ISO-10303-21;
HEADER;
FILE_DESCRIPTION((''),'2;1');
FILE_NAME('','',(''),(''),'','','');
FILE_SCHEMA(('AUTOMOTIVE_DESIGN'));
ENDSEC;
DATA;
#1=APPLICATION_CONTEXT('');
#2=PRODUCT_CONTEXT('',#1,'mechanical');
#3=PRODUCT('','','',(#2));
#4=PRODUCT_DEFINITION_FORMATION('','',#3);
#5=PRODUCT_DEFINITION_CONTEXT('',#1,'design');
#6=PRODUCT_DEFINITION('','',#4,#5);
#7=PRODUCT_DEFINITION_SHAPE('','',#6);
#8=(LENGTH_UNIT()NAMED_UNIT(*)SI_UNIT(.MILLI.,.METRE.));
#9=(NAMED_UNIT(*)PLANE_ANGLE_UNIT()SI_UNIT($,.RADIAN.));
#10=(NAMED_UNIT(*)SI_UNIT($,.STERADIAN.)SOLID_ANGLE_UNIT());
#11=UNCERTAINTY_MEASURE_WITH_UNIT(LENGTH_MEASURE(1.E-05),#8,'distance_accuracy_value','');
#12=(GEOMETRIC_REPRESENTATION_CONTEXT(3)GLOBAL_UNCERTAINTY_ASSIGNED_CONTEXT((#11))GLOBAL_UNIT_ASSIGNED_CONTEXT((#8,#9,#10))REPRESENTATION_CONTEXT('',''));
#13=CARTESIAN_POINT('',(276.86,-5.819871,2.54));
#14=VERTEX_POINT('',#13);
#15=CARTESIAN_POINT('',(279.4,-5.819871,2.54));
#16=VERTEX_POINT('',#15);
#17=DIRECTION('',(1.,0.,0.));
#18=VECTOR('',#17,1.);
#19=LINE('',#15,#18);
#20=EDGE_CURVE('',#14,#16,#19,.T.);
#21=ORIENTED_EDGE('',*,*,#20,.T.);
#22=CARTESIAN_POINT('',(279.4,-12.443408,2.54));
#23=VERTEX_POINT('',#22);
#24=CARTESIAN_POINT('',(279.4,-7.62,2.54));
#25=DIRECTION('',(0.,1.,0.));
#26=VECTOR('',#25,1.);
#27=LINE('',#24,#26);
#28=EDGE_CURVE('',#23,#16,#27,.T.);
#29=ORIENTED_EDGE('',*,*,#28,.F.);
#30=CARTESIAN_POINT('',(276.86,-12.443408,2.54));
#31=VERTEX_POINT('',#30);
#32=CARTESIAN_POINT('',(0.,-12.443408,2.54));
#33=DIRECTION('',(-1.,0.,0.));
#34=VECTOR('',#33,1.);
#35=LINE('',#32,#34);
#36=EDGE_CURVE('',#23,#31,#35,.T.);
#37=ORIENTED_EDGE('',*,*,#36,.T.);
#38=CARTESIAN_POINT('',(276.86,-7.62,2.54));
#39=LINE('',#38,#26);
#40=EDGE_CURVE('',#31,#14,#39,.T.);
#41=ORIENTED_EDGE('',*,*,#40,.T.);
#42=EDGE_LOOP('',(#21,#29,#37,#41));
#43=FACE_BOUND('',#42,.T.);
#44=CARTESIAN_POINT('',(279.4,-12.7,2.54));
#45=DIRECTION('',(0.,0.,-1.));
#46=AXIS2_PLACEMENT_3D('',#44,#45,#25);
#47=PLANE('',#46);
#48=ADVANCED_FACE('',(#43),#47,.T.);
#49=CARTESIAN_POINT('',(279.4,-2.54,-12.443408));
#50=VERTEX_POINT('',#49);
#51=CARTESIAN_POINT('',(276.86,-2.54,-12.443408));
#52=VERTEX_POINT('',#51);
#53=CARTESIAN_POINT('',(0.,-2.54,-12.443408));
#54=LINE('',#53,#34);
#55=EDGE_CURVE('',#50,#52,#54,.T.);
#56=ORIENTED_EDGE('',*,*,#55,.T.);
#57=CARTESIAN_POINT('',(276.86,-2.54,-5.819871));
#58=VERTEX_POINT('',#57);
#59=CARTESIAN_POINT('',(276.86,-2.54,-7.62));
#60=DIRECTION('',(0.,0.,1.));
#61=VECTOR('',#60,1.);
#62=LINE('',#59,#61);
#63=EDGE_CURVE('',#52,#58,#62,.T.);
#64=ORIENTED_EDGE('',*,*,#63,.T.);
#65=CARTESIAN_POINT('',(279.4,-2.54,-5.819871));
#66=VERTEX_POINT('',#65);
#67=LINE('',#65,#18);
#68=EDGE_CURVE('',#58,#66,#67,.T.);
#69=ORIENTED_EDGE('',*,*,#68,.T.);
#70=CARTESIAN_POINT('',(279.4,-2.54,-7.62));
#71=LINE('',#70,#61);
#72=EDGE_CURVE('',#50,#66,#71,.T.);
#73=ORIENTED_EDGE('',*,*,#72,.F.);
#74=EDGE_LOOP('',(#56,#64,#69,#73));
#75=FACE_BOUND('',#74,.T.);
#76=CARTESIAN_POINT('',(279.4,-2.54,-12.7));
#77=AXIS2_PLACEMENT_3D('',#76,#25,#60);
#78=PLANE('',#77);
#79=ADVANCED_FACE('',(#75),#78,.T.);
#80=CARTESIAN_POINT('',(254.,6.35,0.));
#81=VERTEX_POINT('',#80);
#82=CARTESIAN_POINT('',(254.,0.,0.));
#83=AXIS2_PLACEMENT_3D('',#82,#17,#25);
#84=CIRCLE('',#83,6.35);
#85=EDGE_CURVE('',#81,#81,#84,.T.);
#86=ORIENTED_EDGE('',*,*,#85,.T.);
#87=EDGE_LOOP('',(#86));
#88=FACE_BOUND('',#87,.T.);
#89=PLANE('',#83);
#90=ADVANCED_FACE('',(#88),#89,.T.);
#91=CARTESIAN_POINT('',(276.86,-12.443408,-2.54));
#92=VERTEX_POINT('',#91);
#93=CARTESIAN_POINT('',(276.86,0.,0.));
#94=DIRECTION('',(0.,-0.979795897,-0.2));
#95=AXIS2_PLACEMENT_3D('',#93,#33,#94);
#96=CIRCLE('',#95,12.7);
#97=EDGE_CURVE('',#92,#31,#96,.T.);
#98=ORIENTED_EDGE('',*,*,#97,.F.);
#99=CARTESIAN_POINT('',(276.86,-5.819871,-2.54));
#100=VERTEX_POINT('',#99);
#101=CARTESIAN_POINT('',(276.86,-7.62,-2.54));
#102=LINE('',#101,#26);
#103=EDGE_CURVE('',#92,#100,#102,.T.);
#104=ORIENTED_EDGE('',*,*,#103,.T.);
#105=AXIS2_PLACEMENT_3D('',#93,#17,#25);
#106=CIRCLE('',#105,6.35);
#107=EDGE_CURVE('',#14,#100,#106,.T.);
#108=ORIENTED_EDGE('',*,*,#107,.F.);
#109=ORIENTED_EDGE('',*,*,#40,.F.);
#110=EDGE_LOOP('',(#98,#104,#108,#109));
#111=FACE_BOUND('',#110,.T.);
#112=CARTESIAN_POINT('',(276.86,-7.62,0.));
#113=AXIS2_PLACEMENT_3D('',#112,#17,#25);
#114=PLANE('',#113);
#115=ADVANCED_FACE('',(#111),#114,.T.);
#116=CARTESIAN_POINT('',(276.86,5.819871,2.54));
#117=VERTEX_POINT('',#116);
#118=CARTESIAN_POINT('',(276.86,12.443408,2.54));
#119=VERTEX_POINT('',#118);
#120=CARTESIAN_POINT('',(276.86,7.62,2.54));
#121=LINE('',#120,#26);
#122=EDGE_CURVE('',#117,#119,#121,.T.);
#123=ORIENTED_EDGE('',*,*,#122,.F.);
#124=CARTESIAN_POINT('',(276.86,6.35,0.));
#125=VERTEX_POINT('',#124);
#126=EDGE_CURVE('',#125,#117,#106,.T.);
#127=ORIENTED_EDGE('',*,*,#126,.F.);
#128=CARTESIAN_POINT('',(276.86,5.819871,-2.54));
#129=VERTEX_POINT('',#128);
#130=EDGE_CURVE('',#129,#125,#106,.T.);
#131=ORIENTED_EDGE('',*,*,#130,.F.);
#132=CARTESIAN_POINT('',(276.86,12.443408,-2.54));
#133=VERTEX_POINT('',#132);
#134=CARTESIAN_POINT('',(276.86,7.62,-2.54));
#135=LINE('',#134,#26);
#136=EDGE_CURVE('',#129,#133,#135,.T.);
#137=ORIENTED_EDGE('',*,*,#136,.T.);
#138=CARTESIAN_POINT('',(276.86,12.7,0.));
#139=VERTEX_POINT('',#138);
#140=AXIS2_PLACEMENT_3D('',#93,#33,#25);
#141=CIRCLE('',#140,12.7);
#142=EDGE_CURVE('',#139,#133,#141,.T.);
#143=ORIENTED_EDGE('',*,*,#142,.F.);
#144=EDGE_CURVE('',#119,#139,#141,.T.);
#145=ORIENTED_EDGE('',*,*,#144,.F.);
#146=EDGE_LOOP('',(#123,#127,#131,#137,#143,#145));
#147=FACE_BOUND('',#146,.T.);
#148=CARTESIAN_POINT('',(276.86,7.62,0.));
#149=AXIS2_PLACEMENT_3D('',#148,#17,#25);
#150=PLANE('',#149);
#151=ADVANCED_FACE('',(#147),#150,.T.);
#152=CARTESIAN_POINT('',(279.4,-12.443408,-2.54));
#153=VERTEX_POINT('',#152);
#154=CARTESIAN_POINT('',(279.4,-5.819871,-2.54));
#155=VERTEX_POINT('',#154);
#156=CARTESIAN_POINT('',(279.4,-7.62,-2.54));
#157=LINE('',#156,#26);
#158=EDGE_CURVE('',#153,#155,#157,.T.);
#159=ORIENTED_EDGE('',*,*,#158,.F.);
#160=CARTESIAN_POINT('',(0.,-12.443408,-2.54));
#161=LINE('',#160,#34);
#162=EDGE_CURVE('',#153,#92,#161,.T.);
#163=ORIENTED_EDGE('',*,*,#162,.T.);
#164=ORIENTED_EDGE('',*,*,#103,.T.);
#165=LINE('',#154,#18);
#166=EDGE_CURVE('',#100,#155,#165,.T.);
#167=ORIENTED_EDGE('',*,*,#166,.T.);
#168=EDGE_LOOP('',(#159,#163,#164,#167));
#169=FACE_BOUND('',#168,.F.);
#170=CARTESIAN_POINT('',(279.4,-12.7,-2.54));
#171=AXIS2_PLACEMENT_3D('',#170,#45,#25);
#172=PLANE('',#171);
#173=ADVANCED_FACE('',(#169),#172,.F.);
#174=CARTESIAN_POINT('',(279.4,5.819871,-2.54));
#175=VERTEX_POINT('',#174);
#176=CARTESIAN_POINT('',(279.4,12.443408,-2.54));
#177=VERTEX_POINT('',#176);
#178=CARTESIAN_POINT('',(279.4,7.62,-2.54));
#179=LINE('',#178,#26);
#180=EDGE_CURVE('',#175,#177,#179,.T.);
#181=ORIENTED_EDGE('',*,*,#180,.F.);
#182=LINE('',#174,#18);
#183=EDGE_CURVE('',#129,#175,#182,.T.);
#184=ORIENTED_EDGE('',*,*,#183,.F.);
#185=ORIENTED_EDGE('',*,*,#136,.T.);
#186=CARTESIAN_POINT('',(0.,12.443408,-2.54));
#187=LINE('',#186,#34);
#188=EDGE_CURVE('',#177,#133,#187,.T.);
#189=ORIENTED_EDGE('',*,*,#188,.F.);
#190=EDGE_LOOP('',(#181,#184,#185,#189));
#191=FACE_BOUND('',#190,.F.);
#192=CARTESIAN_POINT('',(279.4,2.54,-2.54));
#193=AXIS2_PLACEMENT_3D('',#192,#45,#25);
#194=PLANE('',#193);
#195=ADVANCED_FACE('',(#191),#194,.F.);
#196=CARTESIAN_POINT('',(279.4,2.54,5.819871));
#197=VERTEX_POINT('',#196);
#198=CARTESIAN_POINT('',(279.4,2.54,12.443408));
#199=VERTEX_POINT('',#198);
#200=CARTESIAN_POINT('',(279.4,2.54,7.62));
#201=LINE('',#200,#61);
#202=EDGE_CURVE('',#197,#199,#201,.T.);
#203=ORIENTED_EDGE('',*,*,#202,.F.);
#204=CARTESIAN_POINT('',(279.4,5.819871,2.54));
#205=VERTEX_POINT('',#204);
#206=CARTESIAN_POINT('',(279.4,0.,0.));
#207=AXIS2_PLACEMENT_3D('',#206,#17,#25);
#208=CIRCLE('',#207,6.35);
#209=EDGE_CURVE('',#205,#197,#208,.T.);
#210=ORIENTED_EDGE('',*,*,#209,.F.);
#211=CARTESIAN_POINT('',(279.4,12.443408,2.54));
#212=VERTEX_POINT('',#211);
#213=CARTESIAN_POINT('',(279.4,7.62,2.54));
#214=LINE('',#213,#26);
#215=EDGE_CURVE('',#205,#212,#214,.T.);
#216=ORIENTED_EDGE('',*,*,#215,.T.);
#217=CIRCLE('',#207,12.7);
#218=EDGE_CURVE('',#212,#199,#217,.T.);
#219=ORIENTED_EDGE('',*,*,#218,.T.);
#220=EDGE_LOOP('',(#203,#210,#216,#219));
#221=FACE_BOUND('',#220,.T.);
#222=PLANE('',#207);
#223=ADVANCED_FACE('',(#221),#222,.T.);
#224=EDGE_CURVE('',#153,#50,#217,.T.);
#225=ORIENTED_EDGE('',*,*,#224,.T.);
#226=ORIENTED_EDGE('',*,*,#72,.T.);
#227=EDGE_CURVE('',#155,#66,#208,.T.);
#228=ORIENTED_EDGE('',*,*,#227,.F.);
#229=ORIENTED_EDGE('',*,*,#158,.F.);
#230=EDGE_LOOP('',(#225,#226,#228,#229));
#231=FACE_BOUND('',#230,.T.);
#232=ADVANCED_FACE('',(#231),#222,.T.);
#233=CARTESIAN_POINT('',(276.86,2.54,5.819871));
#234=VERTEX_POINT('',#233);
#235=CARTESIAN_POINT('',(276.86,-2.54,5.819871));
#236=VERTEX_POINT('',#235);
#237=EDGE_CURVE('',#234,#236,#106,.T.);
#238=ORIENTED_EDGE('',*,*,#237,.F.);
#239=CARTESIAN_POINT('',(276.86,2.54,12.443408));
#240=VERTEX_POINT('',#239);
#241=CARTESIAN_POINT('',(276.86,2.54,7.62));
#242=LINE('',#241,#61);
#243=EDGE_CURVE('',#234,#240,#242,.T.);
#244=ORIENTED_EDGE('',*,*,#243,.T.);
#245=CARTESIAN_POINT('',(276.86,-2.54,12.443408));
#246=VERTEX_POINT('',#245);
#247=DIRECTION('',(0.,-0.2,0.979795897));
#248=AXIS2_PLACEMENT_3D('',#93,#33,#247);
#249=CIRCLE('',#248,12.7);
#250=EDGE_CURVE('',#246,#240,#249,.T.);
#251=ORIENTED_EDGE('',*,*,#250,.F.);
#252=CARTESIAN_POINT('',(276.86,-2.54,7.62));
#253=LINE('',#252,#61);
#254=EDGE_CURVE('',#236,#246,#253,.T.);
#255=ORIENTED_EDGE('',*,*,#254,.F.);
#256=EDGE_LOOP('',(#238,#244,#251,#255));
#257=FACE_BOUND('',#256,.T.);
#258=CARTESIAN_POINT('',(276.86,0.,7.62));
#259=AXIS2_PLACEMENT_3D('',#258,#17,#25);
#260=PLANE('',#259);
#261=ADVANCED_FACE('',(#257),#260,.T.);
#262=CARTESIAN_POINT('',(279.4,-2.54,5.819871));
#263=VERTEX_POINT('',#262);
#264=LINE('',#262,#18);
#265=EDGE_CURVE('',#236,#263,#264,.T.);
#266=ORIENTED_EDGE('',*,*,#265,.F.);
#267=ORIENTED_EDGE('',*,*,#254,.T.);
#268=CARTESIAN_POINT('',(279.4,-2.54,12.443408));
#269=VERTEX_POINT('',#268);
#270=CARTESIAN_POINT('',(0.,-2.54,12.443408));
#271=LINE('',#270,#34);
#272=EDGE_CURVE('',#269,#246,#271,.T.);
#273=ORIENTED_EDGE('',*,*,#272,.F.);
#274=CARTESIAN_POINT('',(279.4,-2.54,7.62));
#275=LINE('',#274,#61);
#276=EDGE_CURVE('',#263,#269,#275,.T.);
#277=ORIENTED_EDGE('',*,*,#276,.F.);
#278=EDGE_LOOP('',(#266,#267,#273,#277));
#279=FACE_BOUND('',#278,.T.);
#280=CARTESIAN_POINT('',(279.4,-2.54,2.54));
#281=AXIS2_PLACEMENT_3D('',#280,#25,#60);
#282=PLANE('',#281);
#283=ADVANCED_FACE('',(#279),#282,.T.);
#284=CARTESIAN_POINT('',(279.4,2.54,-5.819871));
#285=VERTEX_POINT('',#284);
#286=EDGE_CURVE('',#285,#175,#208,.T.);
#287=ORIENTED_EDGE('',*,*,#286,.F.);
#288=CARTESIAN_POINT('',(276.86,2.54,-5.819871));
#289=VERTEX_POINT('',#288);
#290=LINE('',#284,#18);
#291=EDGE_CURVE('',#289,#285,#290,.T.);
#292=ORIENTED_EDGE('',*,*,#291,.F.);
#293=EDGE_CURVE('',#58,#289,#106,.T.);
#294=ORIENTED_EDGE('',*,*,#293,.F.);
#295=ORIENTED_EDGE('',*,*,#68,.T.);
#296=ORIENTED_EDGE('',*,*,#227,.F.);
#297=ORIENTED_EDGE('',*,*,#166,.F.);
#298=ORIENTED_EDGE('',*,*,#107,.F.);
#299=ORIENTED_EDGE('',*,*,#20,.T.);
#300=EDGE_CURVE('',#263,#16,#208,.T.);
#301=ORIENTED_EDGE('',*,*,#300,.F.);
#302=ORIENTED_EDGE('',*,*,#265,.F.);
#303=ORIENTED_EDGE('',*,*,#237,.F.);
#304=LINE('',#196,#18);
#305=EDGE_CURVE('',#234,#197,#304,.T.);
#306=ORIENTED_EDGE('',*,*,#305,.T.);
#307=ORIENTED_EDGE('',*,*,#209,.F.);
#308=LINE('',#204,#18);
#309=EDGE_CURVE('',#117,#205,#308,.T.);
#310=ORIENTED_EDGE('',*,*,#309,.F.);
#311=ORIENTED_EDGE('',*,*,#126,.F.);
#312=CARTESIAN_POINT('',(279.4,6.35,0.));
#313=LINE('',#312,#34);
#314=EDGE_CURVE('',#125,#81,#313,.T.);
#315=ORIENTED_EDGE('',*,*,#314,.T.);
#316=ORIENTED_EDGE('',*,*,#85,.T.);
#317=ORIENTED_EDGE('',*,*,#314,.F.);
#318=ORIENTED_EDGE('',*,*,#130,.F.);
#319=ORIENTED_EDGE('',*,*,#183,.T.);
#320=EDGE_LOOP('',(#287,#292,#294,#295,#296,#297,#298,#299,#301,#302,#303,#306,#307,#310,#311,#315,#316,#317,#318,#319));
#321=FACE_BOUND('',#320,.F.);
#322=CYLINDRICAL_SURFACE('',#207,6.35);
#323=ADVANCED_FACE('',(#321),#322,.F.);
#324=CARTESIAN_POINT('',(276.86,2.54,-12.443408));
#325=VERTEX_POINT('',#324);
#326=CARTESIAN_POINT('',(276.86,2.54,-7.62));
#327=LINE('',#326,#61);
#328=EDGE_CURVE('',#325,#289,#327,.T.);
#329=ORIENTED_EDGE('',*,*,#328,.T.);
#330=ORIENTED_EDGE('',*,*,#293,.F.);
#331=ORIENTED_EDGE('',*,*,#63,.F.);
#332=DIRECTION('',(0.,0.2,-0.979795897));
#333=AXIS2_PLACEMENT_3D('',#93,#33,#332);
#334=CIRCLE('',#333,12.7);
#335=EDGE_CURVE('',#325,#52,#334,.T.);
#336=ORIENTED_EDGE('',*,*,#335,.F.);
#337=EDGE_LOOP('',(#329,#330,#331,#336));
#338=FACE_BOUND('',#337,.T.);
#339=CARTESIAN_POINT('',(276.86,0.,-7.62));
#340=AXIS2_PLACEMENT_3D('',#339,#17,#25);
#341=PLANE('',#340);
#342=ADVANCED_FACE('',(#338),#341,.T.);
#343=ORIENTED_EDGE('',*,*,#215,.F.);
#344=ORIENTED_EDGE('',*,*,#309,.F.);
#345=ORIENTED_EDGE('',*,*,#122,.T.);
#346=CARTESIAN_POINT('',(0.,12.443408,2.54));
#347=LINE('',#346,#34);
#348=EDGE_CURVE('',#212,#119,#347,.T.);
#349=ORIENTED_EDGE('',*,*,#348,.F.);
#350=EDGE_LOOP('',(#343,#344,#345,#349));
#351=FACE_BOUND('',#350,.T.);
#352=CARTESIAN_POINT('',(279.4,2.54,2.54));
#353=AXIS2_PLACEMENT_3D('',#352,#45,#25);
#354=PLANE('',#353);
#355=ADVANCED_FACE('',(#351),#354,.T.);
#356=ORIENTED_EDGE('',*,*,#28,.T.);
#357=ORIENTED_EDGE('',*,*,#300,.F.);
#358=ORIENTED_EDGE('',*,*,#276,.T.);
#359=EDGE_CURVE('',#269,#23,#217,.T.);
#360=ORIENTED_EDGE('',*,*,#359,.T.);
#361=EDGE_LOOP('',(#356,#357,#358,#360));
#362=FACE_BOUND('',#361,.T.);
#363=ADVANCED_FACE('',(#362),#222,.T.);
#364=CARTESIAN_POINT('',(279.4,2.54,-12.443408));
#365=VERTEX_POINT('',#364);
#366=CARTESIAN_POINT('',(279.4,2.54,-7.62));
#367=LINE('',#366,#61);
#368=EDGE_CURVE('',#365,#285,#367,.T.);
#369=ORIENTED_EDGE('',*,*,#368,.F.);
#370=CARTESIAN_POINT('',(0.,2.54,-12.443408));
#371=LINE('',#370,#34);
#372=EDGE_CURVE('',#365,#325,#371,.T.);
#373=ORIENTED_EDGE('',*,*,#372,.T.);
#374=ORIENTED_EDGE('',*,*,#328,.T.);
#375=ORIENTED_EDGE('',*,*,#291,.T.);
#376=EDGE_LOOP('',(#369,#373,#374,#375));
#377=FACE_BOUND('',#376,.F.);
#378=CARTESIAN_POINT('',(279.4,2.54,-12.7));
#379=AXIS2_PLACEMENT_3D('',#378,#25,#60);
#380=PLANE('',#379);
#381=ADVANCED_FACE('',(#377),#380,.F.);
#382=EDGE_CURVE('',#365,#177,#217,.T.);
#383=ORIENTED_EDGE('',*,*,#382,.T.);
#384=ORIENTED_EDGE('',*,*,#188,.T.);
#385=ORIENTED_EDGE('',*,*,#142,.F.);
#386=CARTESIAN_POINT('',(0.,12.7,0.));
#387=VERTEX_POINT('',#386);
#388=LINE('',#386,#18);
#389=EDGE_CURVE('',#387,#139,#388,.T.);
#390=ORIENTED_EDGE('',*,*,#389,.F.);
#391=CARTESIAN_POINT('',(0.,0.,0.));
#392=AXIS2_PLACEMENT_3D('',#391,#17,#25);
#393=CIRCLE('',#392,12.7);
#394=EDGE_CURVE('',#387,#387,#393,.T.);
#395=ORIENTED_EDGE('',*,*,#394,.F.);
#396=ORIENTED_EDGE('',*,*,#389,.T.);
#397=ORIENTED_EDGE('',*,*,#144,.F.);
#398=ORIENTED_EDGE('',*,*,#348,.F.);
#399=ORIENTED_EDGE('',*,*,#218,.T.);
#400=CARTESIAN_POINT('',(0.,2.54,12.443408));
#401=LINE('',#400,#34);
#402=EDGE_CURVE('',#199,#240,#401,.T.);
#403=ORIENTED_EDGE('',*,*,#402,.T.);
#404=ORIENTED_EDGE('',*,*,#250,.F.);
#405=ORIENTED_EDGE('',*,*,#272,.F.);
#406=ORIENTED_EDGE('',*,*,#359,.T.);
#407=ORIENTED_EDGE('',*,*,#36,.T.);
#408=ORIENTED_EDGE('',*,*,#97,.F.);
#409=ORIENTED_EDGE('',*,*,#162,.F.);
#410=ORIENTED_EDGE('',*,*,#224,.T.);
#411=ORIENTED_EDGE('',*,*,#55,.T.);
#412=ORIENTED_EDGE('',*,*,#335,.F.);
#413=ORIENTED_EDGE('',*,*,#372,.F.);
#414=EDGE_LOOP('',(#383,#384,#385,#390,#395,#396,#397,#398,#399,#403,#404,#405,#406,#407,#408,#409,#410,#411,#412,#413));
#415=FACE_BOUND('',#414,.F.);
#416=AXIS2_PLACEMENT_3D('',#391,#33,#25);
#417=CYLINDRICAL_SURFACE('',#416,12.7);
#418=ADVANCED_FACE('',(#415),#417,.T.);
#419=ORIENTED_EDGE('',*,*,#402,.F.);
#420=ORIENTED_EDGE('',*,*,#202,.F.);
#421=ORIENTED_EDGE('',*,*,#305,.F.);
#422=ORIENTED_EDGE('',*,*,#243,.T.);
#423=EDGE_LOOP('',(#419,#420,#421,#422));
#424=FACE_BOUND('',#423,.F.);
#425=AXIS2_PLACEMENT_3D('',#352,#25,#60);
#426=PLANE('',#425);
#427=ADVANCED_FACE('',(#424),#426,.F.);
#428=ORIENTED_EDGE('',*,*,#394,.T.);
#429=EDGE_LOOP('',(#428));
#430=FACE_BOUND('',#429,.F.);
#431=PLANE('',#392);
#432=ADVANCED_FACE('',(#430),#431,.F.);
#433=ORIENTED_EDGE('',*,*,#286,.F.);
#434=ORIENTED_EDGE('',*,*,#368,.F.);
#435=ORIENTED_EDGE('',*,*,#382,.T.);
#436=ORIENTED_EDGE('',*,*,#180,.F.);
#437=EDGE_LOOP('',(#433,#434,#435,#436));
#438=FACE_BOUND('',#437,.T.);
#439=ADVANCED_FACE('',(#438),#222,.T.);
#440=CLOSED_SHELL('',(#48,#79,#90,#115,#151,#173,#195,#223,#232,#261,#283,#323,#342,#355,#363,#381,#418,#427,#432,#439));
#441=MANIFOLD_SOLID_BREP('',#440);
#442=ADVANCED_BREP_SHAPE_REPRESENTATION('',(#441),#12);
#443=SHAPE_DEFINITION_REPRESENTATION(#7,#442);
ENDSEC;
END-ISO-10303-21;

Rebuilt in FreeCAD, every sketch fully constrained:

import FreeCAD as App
import Part
import Sketcher
Q = App.Units.Quantity

doc = App.newDocument("Part")
body = doc.addObject("PartDesign::Body", "Body")

# Sketch on YZ plane
sketch1 = body.newObject("Sketcher::SketchObject", "Sketch")
sketch1.AttachmentSupport = (doc.getObject("YZ_Plane"), [""])
sketch1.MapMode = "FlatFace"
sketch1.addGeometry(Part.Circle(App.Vector(0, 0, 0), App.Vector(0, 0, 1), 13), False)
sketch1.addConstraint(Sketcher.Constraint("Coincident", 0, 3, -1, 1))
sketch1.addConstraint(Sketcher.Constraint("Diameter", 0, Q("1 in")))
pad1 = body.newObject("PartDesign::Pad", "Pad")
pad1.Profile = sketch1
pad1.Length = Q("11 in")

# Sketch on YZ plane
sketch2 = body.newObject("Sketcher::SketchObject", "Sketch001")
sketch2.AttachmentSupport = (doc.getObject("YZ_Plane"), [""])
sketch2.MapMode = "FlatFace"
sketch2.AttachmentOffset = App.Placement(App.Vector(0, 0, 11 * 25.4), App.Rotation())
sketch2.addGeometry(Part.Circle(App.Vector(0, 0, 0), App.Vector(0, 0, 1), 6), False)
sketch2.addConstraint(Sketcher.Constraint("Coincident", 0, 3, -1, 1))
sketch2.addConstraint(Sketcher.Constraint("Diameter", 0, Q("0.5 in")))
pocket1 = body.newObject("PartDesign::Pocket", "Pocket")
pocket1.Profile = sketch2
pocket1.Length = Q("1 in")

# Sketch on YZ plane
sketch3 = body.newObject("Sketcher::SketchObject", "Sketch002")
sketch3.AttachmentSupport = (doc.getObject("YZ_Plane"), [""])
sketch3.MapMode = "FlatFace"
sketch3.AttachmentOffset = App.Placement(App.Vector(0, 0, 11 * 25.4), App.Rotation())
sketch3.addGeometry(Part.LineSegment(App.Vector(-13, 3, 0), App.Vector(-13, -3, 0)), False)
sketch3.addGeometry(Part.LineSegment(App.Vector(-13, -3, 0), App.Vector(-3, -3, 0)), False)
sketch3.addGeometry(Part.LineSegment(App.Vector(-3, -3, 0), App.Vector(-3, 3, 0)), False)
sketch3.addGeometry(Part.LineSegment(App.Vector(-3, 3, 0), App.Vector(-13, 3, 0)), False)
sketch3.addGeometry(Part.LineSegment(App.Vector(-3, 13, 0), App.Vector(-3, 3, 0)), False)
sketch3.addGeometry(Part.LineSegment(App.Vector(-3, 3, 0), App.Vector(3, 3, 0)), False)
sketch3.addGeometry(Part.LineSegment(App.Vector(3, 3, 0), App.Vector(3, 13, 0)), False)
sketch3.addGeometry(Part.LineSegment(App.Vector(3, 13, 0), App.Vector(-3, 13, 0)), False)
sketch3.addGeometry(Part.LineSegment(App.Vector(3, 3, 0), App.Vector(3, -3, 0)), False)
sketch3.addGeometry(Part.LineSegment(App.Vector(3, -3, 0), App.Vector(13, -3, 0)), False)
sketch3.addGeometry(Part.LineSegment(App.Vector(13, -3, 0), App.Vector(13, 3, 0)), False)
sketch3.addGeometry(Part.LineSegment(App.Vector(13, 3, 0), App.Vector(3, 3, 0)), False)
sketch3.addGeometry(Part.LineSegment(App.Vector(-3, -3, 0), App.Vector(-3, -13, 0)), False)
sketch3.addGeometry(Part.LineSegment(App.Vector(-3, -13, 0), App.Vector(3, -13, 0)), False)
sketch3.addGeometry(Part.LineSegment(App.Vector(3, -13, 0), App.Vector(3, -3, 0)), False)
sketch3.addGeometry(Part.LineSegment(App.Vector(3, -3, 0), App.Vector(-3, -3, 0)), False)
sketch3.addConstraint(Sketcher.Constraint("Coincident", 0, 2, 1, 1))
sketch3.addConstraint(Sketcher.Constraint("Coincident", 1, 2, 2, 1))
sketch3.addConstraint(Sketcher.Constraint("Coincident", 2, 2, 3, 1))
sketch3.addConstraint(Sketcher.Constraint("Coincident", 3, 2, 0, 1))
sketch3.addConstraint(Sketcher.Constraint("Coincident", 4, 2, 5, 1))
sketch3.addConstraint(Sketcher.Constraint("Coincident", 5, 2, 6, 1))
sketch3.addConstraint(Sketcher.Constraint("Coincident", 6, 2, 7, 1))
sketch3.addConstraint(Sketcher.Constraint("Coincident", 7, 2, 4, 1))
sketch3.addConstraint(Sketcher.Constraint("Coincident", 8, 2, 9, 1))
sketch3.addConstraint(Sketcher.Constraint("Coincident", 9, 2, 10, 1))
sketch3.addConstraint(Sketcher.Constraint("Coincident", 10, 2, 11, 1))
sketch3.addConstraint(Sketcher.Constraint("Coincident", 11, 2, 8, 1))
sketch3.addConstraint(Sketcher.Constraint("Coincident", 12, 2, 13, 1))
sketch3.addConstraint(Sketcher.Constraint("Coincident", 13, 2, 14, 1))
sketch3.addConstraint(Sketcher.Constraint("Coincident", 14, 2, 15, 1))
sketch3.addConstraint(Sketcher.Constraint("Coincident", 15, 2, 12, 1))
sketch3.addConstraint(Sketcher.Constraint("Vertical", 0))
sketch3.addConstraint(Sketcher.Constraint("Horizontal", 1))
sketch3.addConstraint(Sketcher.Constraint("Vertical", 2))
sketch3.addConstraint(Sketcher.Constraint("Horizontal", 3))
sketch3.addConstraint(Sketcher.Constraint("Vertical", 4))
sketch3.addConstraint(Sketcher.Constraint("Horizontal", 5))
sketch3.addConstraint(Sketcher.Constraint("Vertical", 6))
sketch3.addConstraint(Sketcher.Constraint("Horizontal", 7))
sketch3.addConstraint(Sketcher.Constraint("Vertical", 8))
sketch3.addConstraint(Sketcher.Constraint("Horizontal", 9))
sketch3.addConstraint(Sketcher.Constraint("Vertical", 10))
sketch3.addConstraint(Sketcher.Constraint("Horizontal", 11))
sketch3.addConstraint(Sketcher.Constraint("Vertical", 12))
sketch3.addConstraint(Sketcher.Constraint("Horizontal", 13))
sketch3.addConstraint(Sketcher.Constraint("Vertical", 14))
sketch3.addConstraint(Sketcher.Constraint("Horizontal", 15))
sketch3.addConstraint(Sketcher.Constraint("Coincident", 4, 2, 2, 2))
sketch3.addConstraint(Sketcher.Constraint("Coincident", 11, 2, 5, 2))
sketch3.addConstraint(Sketcher.Constraint("Coincident", 14, 2, 8, 2))
sketch3.addConstraint(Sketcher.Constraint("Coincident", 15, 2, 1, 2))
sketch3.addConstraint(Sketcher.Constraint("Symmetric", 1, 2, 5, 2, -1, 1))
sketch3.addConstraint(Sketcher.Constraint("Equal", 3, 9))
sketch3.addConstraint(Sketcher.Constraint("Equal", 15, 0))
sketch3.addConstraint(Sketcher.Constraint("Equal", 11, 4))
sketch3.addConstraint(Sketcher.Constraint("Equal", 6, 12))
sketch3.addConstraint(Sketcher.Constraint("DistanceX", 1, 1, 1, 2, Q("0.4 in")))
sketch3.addConstraint(Sketcher.Constraint("DistanceX", 5, 1, 5, 2, Q("0.2 in")))
pocket2 = body.newObject("PartDesign::Pocket", "Pocket001")
pocket2.Profile = sketch3
pocket2.Length = Q("0.1 in")

doc.recompute()
